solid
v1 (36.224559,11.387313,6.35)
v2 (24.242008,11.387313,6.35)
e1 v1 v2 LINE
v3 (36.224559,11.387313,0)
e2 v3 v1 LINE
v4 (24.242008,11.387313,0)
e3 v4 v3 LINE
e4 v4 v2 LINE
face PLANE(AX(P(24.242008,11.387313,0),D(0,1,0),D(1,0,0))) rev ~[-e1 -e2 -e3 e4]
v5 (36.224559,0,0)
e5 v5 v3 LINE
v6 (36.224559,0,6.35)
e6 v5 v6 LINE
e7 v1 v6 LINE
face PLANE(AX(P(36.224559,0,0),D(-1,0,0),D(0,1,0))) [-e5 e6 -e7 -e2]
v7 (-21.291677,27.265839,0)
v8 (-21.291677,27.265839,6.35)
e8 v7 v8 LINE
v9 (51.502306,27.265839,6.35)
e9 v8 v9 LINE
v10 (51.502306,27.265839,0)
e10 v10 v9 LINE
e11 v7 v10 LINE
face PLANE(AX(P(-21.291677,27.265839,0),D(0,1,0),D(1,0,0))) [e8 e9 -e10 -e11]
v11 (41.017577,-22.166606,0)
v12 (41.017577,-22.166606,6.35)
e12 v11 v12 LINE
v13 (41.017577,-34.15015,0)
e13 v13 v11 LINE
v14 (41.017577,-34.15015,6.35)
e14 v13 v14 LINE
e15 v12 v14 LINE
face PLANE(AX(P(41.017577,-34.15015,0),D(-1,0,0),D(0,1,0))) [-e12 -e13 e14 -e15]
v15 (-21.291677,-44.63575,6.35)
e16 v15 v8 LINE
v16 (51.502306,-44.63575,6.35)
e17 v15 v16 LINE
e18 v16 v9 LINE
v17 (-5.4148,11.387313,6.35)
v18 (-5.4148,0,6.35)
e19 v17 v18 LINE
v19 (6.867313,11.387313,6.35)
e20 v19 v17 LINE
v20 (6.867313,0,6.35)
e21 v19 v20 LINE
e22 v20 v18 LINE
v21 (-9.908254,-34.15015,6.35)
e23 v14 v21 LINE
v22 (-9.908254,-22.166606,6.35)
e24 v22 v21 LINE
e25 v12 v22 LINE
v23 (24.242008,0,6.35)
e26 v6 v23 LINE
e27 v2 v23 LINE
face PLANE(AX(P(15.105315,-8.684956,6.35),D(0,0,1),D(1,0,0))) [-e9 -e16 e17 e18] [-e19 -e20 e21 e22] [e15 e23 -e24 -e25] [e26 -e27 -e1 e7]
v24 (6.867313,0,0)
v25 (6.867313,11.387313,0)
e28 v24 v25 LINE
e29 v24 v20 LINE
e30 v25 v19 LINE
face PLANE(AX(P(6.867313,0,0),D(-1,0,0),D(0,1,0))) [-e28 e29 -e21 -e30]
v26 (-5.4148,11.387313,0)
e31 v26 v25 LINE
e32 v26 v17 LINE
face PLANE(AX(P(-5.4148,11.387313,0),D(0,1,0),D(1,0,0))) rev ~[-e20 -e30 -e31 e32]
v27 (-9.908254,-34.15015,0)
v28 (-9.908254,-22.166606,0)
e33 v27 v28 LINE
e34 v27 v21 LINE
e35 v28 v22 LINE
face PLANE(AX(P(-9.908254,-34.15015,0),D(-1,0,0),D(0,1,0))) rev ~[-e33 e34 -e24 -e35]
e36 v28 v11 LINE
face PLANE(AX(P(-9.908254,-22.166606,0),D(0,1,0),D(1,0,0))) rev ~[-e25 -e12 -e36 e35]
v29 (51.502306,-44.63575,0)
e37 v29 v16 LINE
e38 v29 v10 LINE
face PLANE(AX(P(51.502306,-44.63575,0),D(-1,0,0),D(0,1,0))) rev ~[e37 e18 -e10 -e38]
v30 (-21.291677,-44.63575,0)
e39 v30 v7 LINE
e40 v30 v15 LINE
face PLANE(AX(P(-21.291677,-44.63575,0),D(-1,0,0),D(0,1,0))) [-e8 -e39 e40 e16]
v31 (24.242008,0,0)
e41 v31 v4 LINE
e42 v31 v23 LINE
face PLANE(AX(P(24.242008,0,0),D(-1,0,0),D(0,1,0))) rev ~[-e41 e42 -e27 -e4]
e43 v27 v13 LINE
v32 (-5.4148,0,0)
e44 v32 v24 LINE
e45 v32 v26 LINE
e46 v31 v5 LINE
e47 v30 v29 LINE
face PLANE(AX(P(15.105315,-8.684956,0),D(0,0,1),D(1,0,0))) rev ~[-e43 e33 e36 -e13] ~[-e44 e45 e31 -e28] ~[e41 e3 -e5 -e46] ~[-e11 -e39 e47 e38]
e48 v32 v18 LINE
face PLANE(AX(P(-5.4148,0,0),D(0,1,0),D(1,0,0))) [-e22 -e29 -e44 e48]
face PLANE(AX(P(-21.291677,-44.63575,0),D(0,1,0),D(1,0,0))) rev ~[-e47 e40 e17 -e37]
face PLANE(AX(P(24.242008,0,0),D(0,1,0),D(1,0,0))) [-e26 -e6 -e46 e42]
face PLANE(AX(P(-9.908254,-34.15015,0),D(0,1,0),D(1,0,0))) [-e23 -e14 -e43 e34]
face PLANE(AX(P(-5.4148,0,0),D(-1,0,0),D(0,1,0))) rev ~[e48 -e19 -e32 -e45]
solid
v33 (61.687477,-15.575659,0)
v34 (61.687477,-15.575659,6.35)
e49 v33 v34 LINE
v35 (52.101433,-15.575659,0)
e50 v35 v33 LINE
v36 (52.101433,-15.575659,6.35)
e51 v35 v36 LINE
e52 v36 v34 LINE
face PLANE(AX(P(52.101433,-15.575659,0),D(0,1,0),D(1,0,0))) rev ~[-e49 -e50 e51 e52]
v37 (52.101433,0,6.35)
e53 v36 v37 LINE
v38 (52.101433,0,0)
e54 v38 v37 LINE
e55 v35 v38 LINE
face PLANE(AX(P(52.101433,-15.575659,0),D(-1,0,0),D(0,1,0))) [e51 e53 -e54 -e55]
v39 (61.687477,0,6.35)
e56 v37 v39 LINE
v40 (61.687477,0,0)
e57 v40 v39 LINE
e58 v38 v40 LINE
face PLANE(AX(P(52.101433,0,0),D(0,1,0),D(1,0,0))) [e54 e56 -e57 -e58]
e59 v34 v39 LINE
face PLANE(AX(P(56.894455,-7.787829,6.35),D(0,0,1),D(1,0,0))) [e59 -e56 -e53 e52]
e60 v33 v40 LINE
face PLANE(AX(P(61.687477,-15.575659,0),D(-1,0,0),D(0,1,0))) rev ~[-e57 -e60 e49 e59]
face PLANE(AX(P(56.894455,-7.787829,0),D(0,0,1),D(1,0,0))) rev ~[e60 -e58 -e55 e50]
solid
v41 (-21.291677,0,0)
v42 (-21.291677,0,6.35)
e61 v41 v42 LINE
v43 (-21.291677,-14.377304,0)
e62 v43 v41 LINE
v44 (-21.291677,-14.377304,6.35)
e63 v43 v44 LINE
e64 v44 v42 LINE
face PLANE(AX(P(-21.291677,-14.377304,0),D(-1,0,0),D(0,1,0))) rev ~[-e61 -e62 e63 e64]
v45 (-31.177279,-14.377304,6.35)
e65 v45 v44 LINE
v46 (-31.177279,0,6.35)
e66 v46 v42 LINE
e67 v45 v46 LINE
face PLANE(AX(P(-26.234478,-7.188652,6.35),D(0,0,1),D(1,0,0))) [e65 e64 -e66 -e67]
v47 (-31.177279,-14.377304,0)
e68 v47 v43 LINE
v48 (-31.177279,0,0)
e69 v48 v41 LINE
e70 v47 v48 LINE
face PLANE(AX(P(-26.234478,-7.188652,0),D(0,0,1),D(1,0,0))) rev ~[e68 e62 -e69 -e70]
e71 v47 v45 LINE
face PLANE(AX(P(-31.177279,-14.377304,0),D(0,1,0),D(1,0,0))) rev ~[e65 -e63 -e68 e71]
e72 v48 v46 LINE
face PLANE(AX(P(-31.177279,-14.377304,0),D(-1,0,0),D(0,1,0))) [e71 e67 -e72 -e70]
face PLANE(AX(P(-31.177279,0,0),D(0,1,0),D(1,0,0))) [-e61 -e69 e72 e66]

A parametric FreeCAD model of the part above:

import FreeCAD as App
import Part
import Sketcher
from FreeCAD import Vector
Q = App.Units.Quantity

doc = App.newDocument("Part")
body = doc.addObject("PartDesign::Body", "Body")

# Sketch on XY plane
sketch1 = body.newObject("Sketcher::SketchObject", "Sketch")
sketch1.AttachmentSupport = (doc.getObject("XY_Plane"), [""])
sketch1.MapMode = "FlatFace"
sketch1.addGeometry([
    Part.LineSegment(Vector(-21.291677, 27.265839, 0), Vector(-21.291677, -44.63575, 0)),
    Part.LineSegment(Vector(-21.291677, -44.63575, 0), Vector(51.502306, -44.63575, 0)),
    Part.LineSegment(Vector(51.502306, -44.63575, 0), Vector(51.502306, 27.265839, 0)),
    Part.LineSegment(Vector(51.502306, 27.265839, 0), Vector(-21.291677, 27.265839, 0)),
], False)
sketch1.addConstraint([
    Sketcher.Constraint("Coincident", 0, 2, 1, 1),
    Sketcher.Constraint("Coincident", 1, 2, 2, 1),
    Sketcher.Constraint("Coincident", 2, 2, 3, 1),
    Sketcher.Constraint("Coincident", 3, 2, 0, 1),
    Sketcher.Constraint("Vertical", 0),
    Sketcher.Constraint("Horizontal", 1),
    Sketcher.Constraint("Vertical", 2),
    Sketcher.Constraint("Horizontal", 3),
    Sketcher.Constraint("DistanceY", 0, 2, 0, 1, Q("71.90159 mm")),
    Sketcher.Constraint("DistanceX", 1, 1, 1, 2, Q("72.793983 mm")),
    Sketcher.Constraint("DistanceY", 0, 2, -1, 1, Q("44.63575 mm")),
    Sketcher.Constraint("DistanceX", 0, 2, -1, 1, Q("21.291677 mm")),
])
pad1 = body.newObject("PartDesign::Pad", "Pad")
pad1.Profile = sketch1
pad1.Length = Q("0.25 in")

# Sketch on XY plane
sketch2 = body.newObject("Sketcher::SketchObject", "Sketch001")
sketch2.AttachmentSupport = (doc.getObject("XY_Plane"), [""])
sketch2.MapMode = "FlatFace"
sketch2.addGeometry([
    Part.LineSegment(Vector(-5.4148, 11.387313, 0), Vector(-5.4148, 0, 0)),  # 0
    Part.LineSegment(Vector(-5.4148, 0, 0), Vector(6.867313, 0, 0)),  # 1
    Part.LineSegment(Vector(6.867313, 0, 0), Vector(6.867313, 11.387313, 0)),  # 2
    Part.LineSegment(Vector(6.867313, 11.387313, 0), Vector(-5.4148, 11.387313, 0)),  # 3
    Part.LineSegment(Vector(24.242008, 11.387313, 0), Vector(24.242008, 0, 0)),  # 4
    Part.LineSegment(Vector(24.242008, 0, 0), Vector(36.224559, 0, 0)),  # 5
    Part.LineSegment(Vector(36.224559, 0, 0), Vector(36.224559, 11.387313, 0)),  # 6
    Part.LineSegment(Vector(36.224559, 11.387313, 0), Vector(24.242008, 11.387313, 0)),  # 7
], False)
sketch2.addConstraint([
    Sketcher.Constraint("Coincident", 0, 2, 1, 1),
    Sketcher.Constraint("Coincident", 1, 2, 2, 1),
    Sketcher.Constraint("Coincident", 2, 2, 3, 1),
    Sketcher.Constraint("Coincident", 3, 2, 0, 1),
    Sketcher.Constraint("Coincident", 4, 2, 5, 1),
    Sketcher.Constraint("Coincident", 5, 2, 6, 1),
    Sketcher.Constraint("Coincident", 6, 2, 7, 1),
    Sketcher.Constraint("Coincident", 7, 2, 4, 1),
    Sketcher.Constraint("Vertical", 0),
    Sketcher.Constraint("Horizontal", 1),
    Sketcher.Constraint("Vertical", 2),
    Sketcher.Constraint("Horizontal", 3),
    Sketcher.Constraint("Vertical", 4),
    Sketcher.Constraint("Horizontal", 5),
    Sketcher.Constraint("Vertical", 6),
    Sketcher.Constraint("Horizontal", 7),
    Sketcher.Constraint("PointOnObject", 0, 2, -1),
    Sketcher.Constraint("PointOnObject", 4, 2, -1),
    Sketcher.Constraint("Horizontal", 3, 2, 6, 2),
    Sketcher.Constraint("DistanceX", 5, 1, 5, 2, Q("11.982551 mm")),
    Sketcher.Constraint("DistanceX", 0, 2, -1, 1, Q("5.4148 mm")),
    Sketcher.Constraint("DistanceX", 1, 1, 1, 2, Q("12.282113 mm")),
    Sketcher.Constraint("DistanceY", 0, 2, 0, 1, Q("11.387313 mm")),
    Sketcher.Constraint("DistanceX", -1, 1, 4, 2, Q("24.242008 mm")),
])
pocket1 = body.newObject("PartDesign::Pocket", "Pocket")
pocket1.Profile = sketch2
pocket1.Length = Q("1 in")

# Sketch on XY plane
sketch3 = body.newObject("Sketcher::SketchObject", "Sketch002")
sketch3.AttachmentSupport = (doc.getObject("XY_Plane"), [""])
sketch3.MapMode = "FlatFace"
sketch3.addGeometry([
    Part.LineSegment(Vector(24.242008, 11.387313, 0), Vector(24.242008, 0, 0)),  # 0
    Part.LineSegment(Vector(24.242008, 0, 0), Vector(36.224559, 0, 0)),  # 1
    Part.LineSegment(Vector(36.224559, 0, 0), Vector(36.224559, 11.387313, 0)),  # 2
    Part.LineSegment(Vector(36.224559, 11.387313, 0), Vector(24.242008, 11.387313, 0)),  # 3
    Part.LineSegment(Vector(-5.4148, 11.387313, 0), Vector(-5.4148, 0, 0)),  # 4
    Part.LineSegment(Vector(-5.4148, 0, 0), Vector(6.867313, 0, 0)),  # 5
    Part.LineSegment(Vector(6.867313, 0, 0), Vector(6.867313, 11.387313, 0)),  # 6
    Part.LineSegment(Vector(6.867313, 11.387313, 0), Vector(-5.4148, 11.387313, 0)),  # 7
], False)
sketch3.addConstraint([
    Sketcher.Constraint("Coincident", 0, 2, 1, 1),
    Sketcher.Constraint("Coincident", 1, 2, 2, 1),
    Sketcher.Constraint("Coincident", 2, 2, 3, 1),
    Sketcher.Constraint("Coincident", 3, 2, 0, 1),
    Sketcher.Constraint("Coincident", 4, 2, 5, 1),
    Sketcher.Constraint("Coincident", 5, 2, 6, 1),
    Sketcher.Constraint("Coincident", 6, 2, 7, 1),
    Sketcher.Constraint("Coincident", 7, 2, 4, 1),
    Sketcher.Constraint("Vertical", 0),
    Sketcher.Constraint("Horizontal", 1),
    Sketcher.Constraint("Vertical", 2),
    Sketcher.Constraint("Horizontal", 3),
    Sketcher.Constraint("Vertical", 4),
    Sketcher.Constraint("Horizontal", 5),
    Sketcher.Constraint("Vertical", 6),
    Sketcher.Constraint("Horizontal", 7),
    Sketcher.Constraint("PointOnObject", 0, 2, -1),
    Sketcher.Constraint("PointOnObject", 4, 2, -1),
    Sketcher.Constraint("Horizontal", 3, 2, 6, 2),
    Sketcher.Constraint("DistanceX", 1, 1, 1, 2, Q("11.982551 mm")),
    Sketcher.Constraint("DistanceX", 4, 2, -1, 1, Q("5.4148 mm")),
    Sketcher.Constraint("DistanceX", 5, 1, 5, 2, Q("12.282113 mm")),
    Sketcher.Constraint("DistanceY", 0, 2, 0, 1, Q("11.387313 mm")),
    Sketcher.Constraint("DistanceX", -1, 1, 0, 2, Q("24.242008 mm")),
])
pad2 = body.newObject("PartDesign::Pad", "Pad001")
pad2.Profile = sketch3
pad2.Length = Q("0.25 in")

# Sketch on XY plane
sketch4 = body.newObject("Sketcher::SketchObject", "Sketch003")
sketch4.AttachmentSupport = (doc.getObject("XY_Plane"), [""])
sketch4.MapMode = "FlatFace"
sketch4.addGeometry([
    Part.LineSegment(Vector(24.242008, 11.387313, 0), Vector(24.242008, 0, 0)),  # 0
    Part.LineSegment(Vector(24.242008, 0, 0), Vector(36.224559, 0, 0)),  # 1
    Part.LineSegment(Vector(36.224559, 0, 0), Vector(36.224559, 11.387313, 0)),  # 2
    Part.LineSegment(Vector(36.224559, 11.387313, 0), Vector(24.242008, 11.387313, 0)),  # 3
    Part.LineSegment(Vector(-5.4148, 11.387313, 0), Vector(-5.4148, 0, 0)),  # 4
    Part.LineSegment(Vector(-5.4148, 0, 0), Vector(6.867313, 0, 0)),  # 5
    Part.LineSegment(Vector(6.867313, 0, 0), Vector(6.867313, 11.387313, 0)),  # 6
    Part.LineSegment(Vector(6.867313, 11.387313, 0), Vector(-5.4148, 11.387313, 0)),  # 7
], False)
sketch4.addConstraint([
    Sketcher.Constraint("Coincident", 0, 2, 1, 1),
    Sketcher.Constraint("Coincident", 1, 2, 2, 1),
    Sketcher.Constraint("Coincident", 2, 2, 3, 1),
    Sketcher.Constraint("Coincident", 3, 2, 0, 1),
    Sketcher.Constraint("Coincident", 4, 2, 5, 1),
    Sketcher.Constraint("Coincident", 5, 2, 6, 1),
    Sketcher.Constraint("Coincident", 6, 2, 7, 1),
    Sketcher.Constraint("Coincident", 7, 2, 4, 1),
    Sketcher.Constraint("Vertical", 0),
    Sketcher.Constraint("Horizontal", 1),
    Sketcher.Constraint("Vertical", 2),
    Sketcher.Constraint("Horizontal", 3),
    Sketcher.Constraint("Vertical", 4),
    Sketcher.Constraint("Horizontal", 5),
    Sketcher.Constraint("Vertical", 6),
    Sketcher.Constraint("Horizontal", 7),
    Sketcher.Constraint("PointOnObject", 0, 2, -1),
    Sketcher.Constraint("PointOnObject", 4, 2, -1),
    Sketcher.Constraint("Horizontal", 3, 2, 6, 2),
    Sketcher.Constraint("DistanceX", 1, 1, 1, 2, Q("11.982551 mm")),
    Sketcher.Constraint("DistanceX", 4, 2, -1, 1, Q("5.4148 mm")),
    Sketcher.Constraint("DistanceX", 5, 1, 5, 2, Q("12.282113 mm")),
    Sketcher.Constraint("DistanceY", 0, 2, 0, 1, Q("11.387313 mm")),
    Sketcher.Constraint("DistanceX", -1, 1, 0, 2, Q("24.242008 mm")),
])
pocket2 = body.newObject("PartDesign::Pocket", "Pocket001")
pocket2.Profile = sketch4
pocket2.Length = Q("1 in")
pocket2.Reversed = True

# Sketch on XY plane
sketch5 = body.newObject("Sketcher::SketchObject", "Sketch004")
sketch5.AttachmentSupport = (doc.getObject("XY_Plane"), [""])
sketch5.MapMode = "FlatFace"
sketch5.addGeometry([
    Part.LineSegment(Vector(-9.908254, -22.166606, 0), Vector(-9.908254, -34.15015, 0)),
    Part.LineSegment(Vector(-9.908254, -34.15015, 0), Vector(41.017577, -34.15015, 0)),
    Part.LineSegment(Vector(41.017577, -34.15015, 0), Vector(41.017577, -22.166606, 0)),
    Part.LineSegment(Vector(41.017577, -22.166606, 0), Vector(-9.908254, -22.166606, 0)),
], False)
sketch5.addConstraint([
    Sketcher.Constraint("Coincident", 0, 2, 1, 1),
    Sketcher.Constraint("Coincident", 1, 2, 2, 1),
    Sketcher.Constraint("Coincident", 2, 2, 3, 1),
    Sketcher.Constraint("Coincident", 3, 2, 0, 1),
    Sketcher.Constraint("Vertical", 0),
    Sketcher.Constraint("Horizontal", 1),
    Sketcher.Constraint("Vertical", 2),
    Sketcher.Constraint("Horizontal", 3),
    Sketcher.Constraint("DistanceX", 1, 1, 1, 2, Q("50.925831 mm")),
    Sketcher.Constraint("DistanceY", 0, 2, 0, 1, Q("11.983544 mm")),
    Sketcher.Constraint("DistanceY", 0, 2, -1, 1, Q("34.15015 mm")),
    Sketcher.Constraint("DistanceX", 0, 2, -1, 1, Q("9.908254 mm")),
])
pocket3 = body.newObject("PartDesign::Pocket", "Pocket002")
pocket3.Profile = sketch5
pocket3.Length = Q("1 in")
pocket3.Reversed = True
body2 = doc.addObject("PartDesign::Body", "Body001")

# Sketch on XY plane
sketch6 = body2.newObject("Sketcher::SketchObject", "Sketch005")
sketch6.AttachmentSupport = (doc.getObject("XY_Plane001"), [""])
sketch6.MapMode = "FlatFace"
sketch6.addGeometry([
    Part.LineSegment(Vector(52.101433, 0, 0), Vector(52.101433, -15.575659, 0)),
    Part.LineSegment(Vector(52.101433, -15.575659, 0), Vector(61.687477, -15.575659, 0)),
    Part.LineSegment(Vector(61.687477, -15.575659, 0), Vector(61.687477, 0, 0)),
    Part.LineSegment(Vector(61.687477, 0, 0), Vector(52.101433, 0, 0)),
], False)
sketch6.addConstraint([
    Sketcher.Constraint("Coincident", 0, 2, 1, 1),
    Sketcher.Constraint("Coincident", 1, 2, 2, 1),
    Sketcher.Constraint("Coincident", 2, 2, 3, 1),
    Sketcher.Constraint("Coincident", 3, 2, 0, 1),
    Sketcher.Constraint("Vertical", 0),
    Sketcher.Constraint("Horizontal", 1),
    Sketcher.Constraint("Vertical", 2),
    Sketcher.Constraint("Horizontal", 3),
    Sketcher.Constraint("PointOnObject", 2, 2, -1),
    Sketcher.Constraint("DistanceY", 0, 2, 0, 1, Q("15.575659 mm")),
    Sketcher.Constraint("DistanceX", 1, 1, 1, 2, Q("9.586044 mm")),
    Sketcher.Constraint("DistanceX", -1, 1, 0, 2, Q("52.101433 mm")),
])
pad3 = body2.newObject("PartDesign::Pad", "Pad002")
pad3.Profile = sketch6
pad3.Length = Q("0.25 in")
body3 = doc.addObject("PartDesign::Body", "Body002")

# Sketch on XY plane
sketch7 = body3.newObject("Sketcher::SketchObject", "Sketch006")
sketch7.AttachmentSupport = (doc.getObject("XY_Plane002"), [""])
sketch7.MapMode = "FlatFace"
sketch7.addGeometry([
    Part.LineSegment(Vector(-31.177279, 0, 0), Vector(-31.177279, -14.377304, 0)),
    Part.LineSegment(Vector(-31.177279, -14.377304, 0), Vector(-21.291677, -14.377304, 0)),
    Part.LineSegment(Vector(-21.291677, -14.377304, 0), Vector(-21.291677, 0, 0)),
    Part.LineSegment(Vector(-21.291677, 0, 0), Vector(-31.177279, 0, 0)),
], False)
sketch7.addConstraint([
    Sketcher.Constraint("Coincident", 0, 2, 1, 1),
    Sketcher.Constraint("Coincident", 1, 2, 2, 1),
    Sketcher.Constraint("Coincident", 2, 2, 3, 1),
    Sketcher.Constraint("Coincident", 3, 2, 0, 1),
    Sketcher.Constraint("Vertical", 0),
    Sketcher.Constraint("Horizontal", 1),
    Sketcher.Constraint("Vertical", 2),
    Sketcher.Constraint("Horizontal", 3),
    Sketcher.Constraint("PointOnObject", 2, 2, -1),
    Sketcher.Constraint("DistanceX", 1, 1, 1, 2, Q("9.885602 mm")),
    Sketcher.Constraint("DistanceY", 0, 2, 0, 1, Q("14.377304 mm")),
    Sketcher.Constraint("DistanceX", 0, 2, -1, 1, Q("31.177279 mm")),
])
pad4 = body3.newObject("PartDesign::Pad", "Pad003")
pad4.Profile = sketch7
pad4.Length = Q("0.25 in")

doc.recompute()
